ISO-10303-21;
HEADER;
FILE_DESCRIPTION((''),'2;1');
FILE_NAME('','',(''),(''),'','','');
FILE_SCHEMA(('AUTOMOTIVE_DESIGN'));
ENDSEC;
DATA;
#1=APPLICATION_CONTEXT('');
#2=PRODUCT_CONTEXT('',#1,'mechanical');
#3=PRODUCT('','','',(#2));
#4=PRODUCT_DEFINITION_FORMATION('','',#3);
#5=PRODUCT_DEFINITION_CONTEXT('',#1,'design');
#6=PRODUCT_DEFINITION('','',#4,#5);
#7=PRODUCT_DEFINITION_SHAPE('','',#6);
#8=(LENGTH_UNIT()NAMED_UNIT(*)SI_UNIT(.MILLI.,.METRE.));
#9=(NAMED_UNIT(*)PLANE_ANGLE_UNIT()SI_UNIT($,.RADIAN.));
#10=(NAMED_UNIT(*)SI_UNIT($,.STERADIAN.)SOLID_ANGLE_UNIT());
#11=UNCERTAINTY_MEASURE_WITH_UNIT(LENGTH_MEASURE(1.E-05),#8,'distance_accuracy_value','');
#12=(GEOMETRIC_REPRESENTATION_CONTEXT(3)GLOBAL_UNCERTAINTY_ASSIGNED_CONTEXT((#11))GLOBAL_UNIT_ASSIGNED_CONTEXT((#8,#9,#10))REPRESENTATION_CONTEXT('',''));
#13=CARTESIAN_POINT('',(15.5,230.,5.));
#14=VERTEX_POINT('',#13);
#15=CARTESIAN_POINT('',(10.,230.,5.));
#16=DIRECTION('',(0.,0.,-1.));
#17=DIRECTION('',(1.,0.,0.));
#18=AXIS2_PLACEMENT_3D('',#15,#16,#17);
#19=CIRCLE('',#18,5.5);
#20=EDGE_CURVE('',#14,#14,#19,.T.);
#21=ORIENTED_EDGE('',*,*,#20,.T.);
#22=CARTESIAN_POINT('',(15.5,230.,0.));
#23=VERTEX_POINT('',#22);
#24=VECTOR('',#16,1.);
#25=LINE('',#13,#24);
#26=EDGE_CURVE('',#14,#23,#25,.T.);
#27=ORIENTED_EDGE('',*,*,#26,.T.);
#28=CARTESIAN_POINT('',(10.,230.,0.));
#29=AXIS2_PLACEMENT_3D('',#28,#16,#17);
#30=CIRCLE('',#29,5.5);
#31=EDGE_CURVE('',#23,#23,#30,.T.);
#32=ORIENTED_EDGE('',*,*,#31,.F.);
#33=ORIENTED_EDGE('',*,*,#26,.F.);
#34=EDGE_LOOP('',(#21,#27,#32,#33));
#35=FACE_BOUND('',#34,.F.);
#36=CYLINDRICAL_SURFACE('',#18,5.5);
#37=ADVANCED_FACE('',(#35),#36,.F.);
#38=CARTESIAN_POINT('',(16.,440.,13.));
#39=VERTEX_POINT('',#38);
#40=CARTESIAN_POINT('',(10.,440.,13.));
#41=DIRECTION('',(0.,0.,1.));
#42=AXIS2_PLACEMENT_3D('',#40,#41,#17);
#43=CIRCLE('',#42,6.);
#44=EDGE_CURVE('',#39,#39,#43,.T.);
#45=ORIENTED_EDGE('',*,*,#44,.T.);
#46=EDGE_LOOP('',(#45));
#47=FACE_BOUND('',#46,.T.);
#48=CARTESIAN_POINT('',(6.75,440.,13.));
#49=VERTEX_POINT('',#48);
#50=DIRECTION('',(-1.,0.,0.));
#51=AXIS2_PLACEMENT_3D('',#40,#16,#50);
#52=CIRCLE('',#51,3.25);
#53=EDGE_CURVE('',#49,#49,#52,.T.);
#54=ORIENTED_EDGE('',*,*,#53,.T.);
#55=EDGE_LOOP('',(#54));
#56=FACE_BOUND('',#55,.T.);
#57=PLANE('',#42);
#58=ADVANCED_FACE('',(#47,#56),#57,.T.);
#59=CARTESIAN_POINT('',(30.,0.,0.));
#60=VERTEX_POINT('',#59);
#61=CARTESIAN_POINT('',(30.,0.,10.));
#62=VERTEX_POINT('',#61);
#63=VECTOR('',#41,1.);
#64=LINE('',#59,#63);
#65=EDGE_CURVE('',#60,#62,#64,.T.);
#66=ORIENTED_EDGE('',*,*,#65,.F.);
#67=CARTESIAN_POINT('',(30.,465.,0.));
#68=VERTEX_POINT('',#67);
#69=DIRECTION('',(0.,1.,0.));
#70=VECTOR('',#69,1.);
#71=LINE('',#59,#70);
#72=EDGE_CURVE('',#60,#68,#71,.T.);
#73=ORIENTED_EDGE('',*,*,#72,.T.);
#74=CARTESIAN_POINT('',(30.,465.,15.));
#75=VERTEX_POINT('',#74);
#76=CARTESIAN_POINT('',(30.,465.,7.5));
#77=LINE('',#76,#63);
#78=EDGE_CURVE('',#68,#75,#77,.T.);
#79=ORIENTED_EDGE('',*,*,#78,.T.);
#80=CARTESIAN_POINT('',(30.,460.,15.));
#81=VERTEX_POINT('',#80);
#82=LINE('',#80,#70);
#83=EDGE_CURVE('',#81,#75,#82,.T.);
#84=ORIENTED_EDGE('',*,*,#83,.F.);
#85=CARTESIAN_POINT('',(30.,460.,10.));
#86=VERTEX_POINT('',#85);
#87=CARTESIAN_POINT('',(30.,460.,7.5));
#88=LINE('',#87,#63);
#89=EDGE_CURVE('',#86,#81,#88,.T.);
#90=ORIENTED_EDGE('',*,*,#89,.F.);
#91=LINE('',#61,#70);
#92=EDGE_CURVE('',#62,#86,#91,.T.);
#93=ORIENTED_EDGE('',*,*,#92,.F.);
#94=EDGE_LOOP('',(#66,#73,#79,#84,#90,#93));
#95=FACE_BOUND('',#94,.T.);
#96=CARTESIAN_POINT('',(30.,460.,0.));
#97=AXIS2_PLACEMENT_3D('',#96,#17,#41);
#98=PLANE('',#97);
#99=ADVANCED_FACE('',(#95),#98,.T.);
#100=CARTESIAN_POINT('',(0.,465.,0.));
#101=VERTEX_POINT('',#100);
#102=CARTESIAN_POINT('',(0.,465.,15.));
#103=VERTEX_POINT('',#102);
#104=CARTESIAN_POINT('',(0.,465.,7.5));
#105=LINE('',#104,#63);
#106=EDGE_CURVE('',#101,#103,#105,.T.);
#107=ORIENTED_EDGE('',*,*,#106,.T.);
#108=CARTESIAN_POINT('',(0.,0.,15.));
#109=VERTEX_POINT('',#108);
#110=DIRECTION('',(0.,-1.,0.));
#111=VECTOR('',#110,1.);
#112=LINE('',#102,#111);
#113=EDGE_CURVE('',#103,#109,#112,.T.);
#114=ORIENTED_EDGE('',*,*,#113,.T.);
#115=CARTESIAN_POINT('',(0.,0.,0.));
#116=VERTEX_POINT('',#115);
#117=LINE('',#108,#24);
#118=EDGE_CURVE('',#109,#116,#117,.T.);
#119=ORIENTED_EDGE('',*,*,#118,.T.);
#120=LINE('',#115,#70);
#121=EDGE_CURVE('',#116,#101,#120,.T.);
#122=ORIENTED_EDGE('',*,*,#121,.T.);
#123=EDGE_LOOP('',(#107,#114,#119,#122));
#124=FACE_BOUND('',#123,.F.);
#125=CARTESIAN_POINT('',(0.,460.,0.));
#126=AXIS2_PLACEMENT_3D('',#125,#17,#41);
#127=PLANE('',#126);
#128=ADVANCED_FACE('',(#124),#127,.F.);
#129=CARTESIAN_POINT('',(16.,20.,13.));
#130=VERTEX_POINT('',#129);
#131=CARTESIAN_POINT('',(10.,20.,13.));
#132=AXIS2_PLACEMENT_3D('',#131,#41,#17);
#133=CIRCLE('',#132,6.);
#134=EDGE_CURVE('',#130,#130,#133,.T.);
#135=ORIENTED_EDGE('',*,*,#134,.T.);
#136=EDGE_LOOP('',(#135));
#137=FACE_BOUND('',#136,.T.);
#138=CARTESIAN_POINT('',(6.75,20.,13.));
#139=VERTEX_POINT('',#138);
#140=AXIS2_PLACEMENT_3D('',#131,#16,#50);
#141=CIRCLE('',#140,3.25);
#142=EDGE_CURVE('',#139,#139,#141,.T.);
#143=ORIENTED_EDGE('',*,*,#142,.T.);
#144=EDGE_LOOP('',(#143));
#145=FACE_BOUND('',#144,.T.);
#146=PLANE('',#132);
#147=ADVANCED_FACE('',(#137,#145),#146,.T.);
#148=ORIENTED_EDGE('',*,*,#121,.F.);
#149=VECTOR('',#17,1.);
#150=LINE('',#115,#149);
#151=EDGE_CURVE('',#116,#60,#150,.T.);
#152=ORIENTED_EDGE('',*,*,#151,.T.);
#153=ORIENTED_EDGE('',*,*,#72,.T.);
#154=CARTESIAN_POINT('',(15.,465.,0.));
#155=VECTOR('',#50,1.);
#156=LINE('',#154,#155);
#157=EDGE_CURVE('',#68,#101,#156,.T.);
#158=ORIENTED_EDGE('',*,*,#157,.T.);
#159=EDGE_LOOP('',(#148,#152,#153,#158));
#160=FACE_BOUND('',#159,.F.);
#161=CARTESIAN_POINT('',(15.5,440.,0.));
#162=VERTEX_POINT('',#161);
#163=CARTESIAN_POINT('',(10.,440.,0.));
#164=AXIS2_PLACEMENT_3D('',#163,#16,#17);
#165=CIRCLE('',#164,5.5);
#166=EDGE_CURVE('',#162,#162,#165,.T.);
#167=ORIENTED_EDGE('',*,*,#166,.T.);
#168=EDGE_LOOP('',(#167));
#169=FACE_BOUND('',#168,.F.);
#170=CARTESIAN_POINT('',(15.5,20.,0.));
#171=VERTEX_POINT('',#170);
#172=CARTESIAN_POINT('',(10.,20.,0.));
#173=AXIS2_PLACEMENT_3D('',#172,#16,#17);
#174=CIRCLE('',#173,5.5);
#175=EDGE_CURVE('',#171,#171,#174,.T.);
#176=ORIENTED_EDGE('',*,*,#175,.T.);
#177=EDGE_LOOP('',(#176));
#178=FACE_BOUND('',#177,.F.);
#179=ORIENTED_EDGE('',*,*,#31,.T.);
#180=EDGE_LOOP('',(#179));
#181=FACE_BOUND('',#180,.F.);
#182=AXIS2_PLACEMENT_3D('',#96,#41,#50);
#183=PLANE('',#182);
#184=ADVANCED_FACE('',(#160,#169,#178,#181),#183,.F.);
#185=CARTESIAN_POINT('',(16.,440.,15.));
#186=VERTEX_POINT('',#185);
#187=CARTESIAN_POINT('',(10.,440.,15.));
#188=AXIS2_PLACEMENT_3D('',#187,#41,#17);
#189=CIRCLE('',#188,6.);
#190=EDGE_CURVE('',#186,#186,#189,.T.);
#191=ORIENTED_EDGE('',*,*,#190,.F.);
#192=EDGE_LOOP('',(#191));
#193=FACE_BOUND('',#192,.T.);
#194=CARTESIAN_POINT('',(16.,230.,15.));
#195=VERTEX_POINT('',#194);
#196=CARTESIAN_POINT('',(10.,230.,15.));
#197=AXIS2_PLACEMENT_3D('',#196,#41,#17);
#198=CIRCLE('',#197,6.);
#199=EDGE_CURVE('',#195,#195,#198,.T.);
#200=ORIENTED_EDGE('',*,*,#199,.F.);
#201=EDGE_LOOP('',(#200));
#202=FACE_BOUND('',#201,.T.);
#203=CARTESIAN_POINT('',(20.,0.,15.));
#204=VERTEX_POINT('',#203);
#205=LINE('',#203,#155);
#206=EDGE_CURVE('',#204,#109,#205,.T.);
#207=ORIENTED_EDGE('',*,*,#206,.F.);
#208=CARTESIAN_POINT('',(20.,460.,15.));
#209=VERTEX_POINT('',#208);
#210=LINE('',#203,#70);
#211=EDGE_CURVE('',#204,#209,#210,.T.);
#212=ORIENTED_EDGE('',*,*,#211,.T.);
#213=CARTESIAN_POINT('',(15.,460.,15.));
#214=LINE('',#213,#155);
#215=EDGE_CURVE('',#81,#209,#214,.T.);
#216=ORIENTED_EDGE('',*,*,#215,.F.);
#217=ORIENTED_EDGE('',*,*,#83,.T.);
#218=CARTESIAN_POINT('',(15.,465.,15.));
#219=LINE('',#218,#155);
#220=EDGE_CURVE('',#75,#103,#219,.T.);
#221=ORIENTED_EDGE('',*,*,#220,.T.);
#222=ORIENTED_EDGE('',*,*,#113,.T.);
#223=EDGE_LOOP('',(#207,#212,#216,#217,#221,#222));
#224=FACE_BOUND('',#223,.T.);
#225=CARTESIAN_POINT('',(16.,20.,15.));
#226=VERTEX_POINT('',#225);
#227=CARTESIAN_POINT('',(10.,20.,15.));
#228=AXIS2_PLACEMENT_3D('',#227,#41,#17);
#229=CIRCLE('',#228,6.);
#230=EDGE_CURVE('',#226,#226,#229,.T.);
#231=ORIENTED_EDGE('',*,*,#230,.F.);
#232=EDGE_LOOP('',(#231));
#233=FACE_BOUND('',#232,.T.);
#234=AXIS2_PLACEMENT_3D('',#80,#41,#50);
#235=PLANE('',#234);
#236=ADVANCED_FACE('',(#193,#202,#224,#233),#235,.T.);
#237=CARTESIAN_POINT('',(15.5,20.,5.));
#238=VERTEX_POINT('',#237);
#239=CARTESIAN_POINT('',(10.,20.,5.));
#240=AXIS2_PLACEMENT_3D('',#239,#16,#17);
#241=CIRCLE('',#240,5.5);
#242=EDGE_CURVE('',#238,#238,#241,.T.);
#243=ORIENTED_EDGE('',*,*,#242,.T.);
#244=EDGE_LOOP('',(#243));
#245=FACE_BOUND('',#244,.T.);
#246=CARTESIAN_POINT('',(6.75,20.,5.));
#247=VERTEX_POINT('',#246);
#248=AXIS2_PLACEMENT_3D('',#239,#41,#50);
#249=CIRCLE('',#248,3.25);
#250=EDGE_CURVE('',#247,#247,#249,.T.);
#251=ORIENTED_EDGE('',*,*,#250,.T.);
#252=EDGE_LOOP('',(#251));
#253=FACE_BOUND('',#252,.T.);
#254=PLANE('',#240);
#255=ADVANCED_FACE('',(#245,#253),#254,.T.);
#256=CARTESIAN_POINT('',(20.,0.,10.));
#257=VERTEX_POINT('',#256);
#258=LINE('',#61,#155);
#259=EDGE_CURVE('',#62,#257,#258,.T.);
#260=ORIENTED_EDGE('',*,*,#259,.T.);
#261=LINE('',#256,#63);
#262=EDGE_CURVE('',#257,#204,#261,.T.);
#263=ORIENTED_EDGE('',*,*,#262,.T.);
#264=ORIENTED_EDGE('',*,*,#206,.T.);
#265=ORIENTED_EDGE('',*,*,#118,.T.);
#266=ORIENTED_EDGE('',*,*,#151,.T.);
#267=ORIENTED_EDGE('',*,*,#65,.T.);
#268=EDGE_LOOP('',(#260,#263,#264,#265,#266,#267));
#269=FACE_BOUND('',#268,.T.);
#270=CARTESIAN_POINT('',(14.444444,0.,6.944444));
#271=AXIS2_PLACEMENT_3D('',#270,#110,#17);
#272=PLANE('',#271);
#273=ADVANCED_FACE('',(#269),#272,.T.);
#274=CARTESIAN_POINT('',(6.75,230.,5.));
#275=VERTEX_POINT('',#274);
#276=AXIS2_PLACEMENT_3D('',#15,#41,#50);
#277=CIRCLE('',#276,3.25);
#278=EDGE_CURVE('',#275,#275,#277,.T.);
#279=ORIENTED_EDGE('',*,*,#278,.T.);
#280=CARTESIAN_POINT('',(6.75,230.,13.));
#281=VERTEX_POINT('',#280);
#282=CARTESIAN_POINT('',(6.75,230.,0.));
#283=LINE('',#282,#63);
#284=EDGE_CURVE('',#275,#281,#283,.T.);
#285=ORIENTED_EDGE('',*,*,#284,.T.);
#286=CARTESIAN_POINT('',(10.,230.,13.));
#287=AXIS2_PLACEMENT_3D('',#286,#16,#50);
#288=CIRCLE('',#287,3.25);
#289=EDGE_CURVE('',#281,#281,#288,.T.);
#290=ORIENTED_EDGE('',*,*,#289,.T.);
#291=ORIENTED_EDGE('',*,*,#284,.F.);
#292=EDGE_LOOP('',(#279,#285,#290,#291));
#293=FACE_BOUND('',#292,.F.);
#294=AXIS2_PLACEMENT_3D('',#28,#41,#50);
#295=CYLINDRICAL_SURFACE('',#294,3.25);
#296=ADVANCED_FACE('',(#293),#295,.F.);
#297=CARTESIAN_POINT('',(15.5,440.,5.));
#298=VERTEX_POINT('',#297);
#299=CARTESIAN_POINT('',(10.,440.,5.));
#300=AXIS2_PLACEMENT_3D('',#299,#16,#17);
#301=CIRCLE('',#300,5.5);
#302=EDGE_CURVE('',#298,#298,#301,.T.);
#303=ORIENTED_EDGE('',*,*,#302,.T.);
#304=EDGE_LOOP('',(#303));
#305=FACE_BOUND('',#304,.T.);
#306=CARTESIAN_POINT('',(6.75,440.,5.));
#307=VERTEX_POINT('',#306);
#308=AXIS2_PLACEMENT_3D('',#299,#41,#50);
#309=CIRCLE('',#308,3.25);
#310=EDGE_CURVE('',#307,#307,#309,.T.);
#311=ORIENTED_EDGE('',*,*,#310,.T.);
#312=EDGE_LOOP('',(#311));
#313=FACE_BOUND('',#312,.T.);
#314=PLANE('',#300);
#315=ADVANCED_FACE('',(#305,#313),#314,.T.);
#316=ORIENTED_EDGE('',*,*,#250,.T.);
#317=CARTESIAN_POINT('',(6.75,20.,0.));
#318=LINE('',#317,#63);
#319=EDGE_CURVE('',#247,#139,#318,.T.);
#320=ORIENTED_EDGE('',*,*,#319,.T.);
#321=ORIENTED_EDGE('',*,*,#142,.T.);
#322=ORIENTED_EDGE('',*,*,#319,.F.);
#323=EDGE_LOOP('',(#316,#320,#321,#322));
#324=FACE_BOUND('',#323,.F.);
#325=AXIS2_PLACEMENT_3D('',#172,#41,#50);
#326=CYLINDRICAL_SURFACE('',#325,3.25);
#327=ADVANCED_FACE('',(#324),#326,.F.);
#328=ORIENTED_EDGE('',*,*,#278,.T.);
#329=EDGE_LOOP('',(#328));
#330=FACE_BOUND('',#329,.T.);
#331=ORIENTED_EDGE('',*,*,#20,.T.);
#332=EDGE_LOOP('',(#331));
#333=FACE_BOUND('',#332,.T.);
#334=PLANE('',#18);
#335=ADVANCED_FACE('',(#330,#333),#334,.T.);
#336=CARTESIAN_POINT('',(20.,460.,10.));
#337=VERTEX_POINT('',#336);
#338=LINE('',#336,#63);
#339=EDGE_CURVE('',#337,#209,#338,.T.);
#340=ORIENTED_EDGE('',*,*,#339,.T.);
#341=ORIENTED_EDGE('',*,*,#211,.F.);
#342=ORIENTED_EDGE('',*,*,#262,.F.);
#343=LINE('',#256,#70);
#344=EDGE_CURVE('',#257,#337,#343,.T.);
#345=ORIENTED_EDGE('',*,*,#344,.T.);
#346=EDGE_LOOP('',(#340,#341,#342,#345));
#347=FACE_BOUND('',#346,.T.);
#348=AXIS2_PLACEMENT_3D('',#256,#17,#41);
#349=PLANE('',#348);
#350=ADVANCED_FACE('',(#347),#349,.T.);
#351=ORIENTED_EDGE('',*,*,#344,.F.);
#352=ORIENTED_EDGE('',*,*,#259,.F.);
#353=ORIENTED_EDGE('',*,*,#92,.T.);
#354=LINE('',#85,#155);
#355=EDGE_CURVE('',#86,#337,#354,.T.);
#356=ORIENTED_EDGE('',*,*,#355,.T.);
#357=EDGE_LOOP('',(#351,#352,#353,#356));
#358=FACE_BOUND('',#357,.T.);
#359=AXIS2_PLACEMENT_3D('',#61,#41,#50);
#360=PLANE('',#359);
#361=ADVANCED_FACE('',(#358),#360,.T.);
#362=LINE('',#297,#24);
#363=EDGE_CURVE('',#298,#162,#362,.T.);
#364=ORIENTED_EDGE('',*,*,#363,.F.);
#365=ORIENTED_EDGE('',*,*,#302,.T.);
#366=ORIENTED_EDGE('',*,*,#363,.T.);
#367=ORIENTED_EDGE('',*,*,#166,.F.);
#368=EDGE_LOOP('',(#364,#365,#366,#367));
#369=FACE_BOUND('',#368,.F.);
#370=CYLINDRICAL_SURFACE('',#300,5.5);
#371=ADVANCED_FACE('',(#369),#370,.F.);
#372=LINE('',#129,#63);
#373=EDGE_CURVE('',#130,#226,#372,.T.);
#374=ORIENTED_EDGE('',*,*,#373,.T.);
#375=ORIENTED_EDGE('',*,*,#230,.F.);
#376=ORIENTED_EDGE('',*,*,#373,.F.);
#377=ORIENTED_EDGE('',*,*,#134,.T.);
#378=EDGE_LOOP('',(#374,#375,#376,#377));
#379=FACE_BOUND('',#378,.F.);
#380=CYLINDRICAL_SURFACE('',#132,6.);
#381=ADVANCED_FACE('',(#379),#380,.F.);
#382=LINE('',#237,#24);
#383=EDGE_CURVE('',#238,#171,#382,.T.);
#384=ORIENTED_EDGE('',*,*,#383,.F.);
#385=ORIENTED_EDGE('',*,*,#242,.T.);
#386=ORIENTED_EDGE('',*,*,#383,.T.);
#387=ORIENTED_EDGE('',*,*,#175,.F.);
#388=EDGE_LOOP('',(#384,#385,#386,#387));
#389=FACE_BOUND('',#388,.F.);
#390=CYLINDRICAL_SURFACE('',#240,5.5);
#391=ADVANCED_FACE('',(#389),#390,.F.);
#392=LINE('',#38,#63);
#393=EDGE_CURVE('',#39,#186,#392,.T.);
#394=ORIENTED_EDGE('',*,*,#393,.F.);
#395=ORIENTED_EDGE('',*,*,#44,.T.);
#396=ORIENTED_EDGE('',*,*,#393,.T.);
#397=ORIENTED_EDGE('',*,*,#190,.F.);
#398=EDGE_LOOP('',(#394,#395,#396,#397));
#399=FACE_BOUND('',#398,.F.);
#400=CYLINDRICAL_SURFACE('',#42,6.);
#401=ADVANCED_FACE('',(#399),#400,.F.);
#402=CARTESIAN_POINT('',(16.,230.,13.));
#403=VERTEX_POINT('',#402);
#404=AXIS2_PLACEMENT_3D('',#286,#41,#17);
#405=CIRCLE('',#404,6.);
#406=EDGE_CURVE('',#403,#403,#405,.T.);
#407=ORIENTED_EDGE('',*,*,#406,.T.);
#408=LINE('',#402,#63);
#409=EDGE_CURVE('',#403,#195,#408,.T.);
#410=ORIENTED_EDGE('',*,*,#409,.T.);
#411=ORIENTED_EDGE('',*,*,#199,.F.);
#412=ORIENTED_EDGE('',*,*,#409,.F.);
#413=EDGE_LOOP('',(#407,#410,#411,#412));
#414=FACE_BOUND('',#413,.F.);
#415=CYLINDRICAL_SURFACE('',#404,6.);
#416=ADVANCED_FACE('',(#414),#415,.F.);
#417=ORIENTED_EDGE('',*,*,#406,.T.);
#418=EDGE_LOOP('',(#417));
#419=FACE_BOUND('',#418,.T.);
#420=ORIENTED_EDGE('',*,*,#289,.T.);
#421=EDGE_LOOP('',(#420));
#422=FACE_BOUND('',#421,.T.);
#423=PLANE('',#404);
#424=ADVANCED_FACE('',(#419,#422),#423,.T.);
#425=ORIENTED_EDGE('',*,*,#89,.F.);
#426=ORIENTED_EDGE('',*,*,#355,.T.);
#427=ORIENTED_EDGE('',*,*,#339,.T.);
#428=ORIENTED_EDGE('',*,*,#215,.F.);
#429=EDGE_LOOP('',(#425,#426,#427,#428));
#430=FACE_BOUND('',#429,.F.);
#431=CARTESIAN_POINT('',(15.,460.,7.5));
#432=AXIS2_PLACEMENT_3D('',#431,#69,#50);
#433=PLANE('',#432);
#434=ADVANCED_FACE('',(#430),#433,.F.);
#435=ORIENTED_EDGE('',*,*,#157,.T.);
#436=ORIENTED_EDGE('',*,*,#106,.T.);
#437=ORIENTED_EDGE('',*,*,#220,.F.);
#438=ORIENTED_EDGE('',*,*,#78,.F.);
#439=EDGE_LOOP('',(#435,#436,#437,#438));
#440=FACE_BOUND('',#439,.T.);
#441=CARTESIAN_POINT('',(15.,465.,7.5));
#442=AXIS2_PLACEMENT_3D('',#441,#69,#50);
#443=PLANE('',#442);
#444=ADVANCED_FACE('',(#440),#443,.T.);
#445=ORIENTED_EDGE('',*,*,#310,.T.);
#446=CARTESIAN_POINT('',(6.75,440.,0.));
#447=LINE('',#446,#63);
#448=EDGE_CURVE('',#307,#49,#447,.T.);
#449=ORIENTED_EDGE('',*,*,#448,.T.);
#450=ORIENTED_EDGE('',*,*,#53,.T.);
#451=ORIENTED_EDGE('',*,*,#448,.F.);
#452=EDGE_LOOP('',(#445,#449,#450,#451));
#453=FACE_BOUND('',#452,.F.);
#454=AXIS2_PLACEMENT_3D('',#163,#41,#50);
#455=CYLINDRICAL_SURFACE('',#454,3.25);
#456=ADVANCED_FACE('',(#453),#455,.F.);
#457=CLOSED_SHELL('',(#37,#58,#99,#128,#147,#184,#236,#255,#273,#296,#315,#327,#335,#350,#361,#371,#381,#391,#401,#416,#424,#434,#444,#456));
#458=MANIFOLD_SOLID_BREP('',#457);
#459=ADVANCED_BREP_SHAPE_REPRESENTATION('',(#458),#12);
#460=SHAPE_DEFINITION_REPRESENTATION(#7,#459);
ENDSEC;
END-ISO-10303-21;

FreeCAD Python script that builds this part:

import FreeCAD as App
import Part
import Sketcher

V = App.Vector
Q = App.Units.Quantity


def add_polygon(sketch, points):
    """Adds a closed chain of lines whose ends are joined by coincident constraints."""
    first, n = sketch.GeometryCount, len(points)
    for a, b in zip(points, points[1:] + points[:1]):
        sketch.addGeometry(Part.LineSegment(App.Vector(*a, 0), App.Vector(*b, 0)), False)
    for i in range(n):
        sketch.addConstraint(Sketcher.Constraint("Coincident", first + i, 2, first + (i + 1) % n, 1))

doc = App.newDocument("Part")
body = doc.addObject("PartDesign::Body", "Body")

sketch1 = body.newObject("Sketcher::SketchObject", "Sketch")
sketch1.AttachmentSupport = (doc.getObject("XZ_Plane"), [""])
sketch1.MapMode = "FlatFace"
add_polygon(sketch1, [(0, 15), (0, 0), (30, 0), (30, 10), (20, 10), (20, 15)])
sketch1.addConstraint([
    Sketcher.Constraint("Vertical", 0),
    Sketcher.Constraint("Horizontal", 1),
    Sketcher.Constraint("Vertical", 2),
    Sketcher.Constraint("Horizontal", 3),
    Sketcher.Constraint("Vertical", 4),
    Sketcher.Constraint("Horizontal", 5),
    Sketcher.Constraint("Coincident", 0, 2, -1, 1),
    Sketcher.Constraint("Equal", 3, 2),
    Sketcher.Constraint("DistanceX", 1, 1, 1, 2, Q("30 mm")),
    Sketcher.Constraint("DistanceX", 3, 2, 3, 1, Q("10 mm")),
    Sketcher.Constraint("DistanceY", 0, 2, 0, 1, Q("15 mm")),
])
pad1 = body.newObject("PartDesign::Pad", "Pad")
pad1.Profile = sketch1
pad1.Length = 460
pad1.Reversed = True

sketch2 = body.newObject("Sketcher::SketchObject", "Sketch001")
sketch2.AttachmentSupport = (doc.getObject("XY_Plane"), [""])
sketch2.MapMode = "FlatFace"
sketch2.addGeometry([
    Part.Circle(V(10, 440, 0), V(0, 0, 1), 3.2),
    Part.Circle(V(10, 230, 0), V(0, 0, 1), 3.2),
    Part.Circle(V(10, 20, 0), V(0, 0, 1), 3.2),
], False)
sketch2.addConstraint([
    Sketcher.Constraint("Equal", 0, 1),
    Sketcher.Constraint("Equal", 1, 2),
    Sketcher.Constraint("Vertical", 0, 3, 1, 3),
    Sketcher.Constraint("Vertical", 1, 3, 2, 3),
    Sketcher.Constraint("Diameter", 0, Q("6.5 mm")),
    Sketcher.Constraint("DistanceX", -1, 1, 0, 3, Q("10 mm")),
    Sketcher.Constraint("DistanceY", -1, 1, 0, 3, Q("440 mm")),
    Sketcher.Constraint("DistanceY", -1, 1, 1, 3, Q("230 mm")),
    Sketcher.Constraint("DistanceY", -1, 1, 2, 3, Q("20 mm")),
])
doc.recompute()
hole = body.newObject("PartDesign::Hole", "Hole")
hole.Profile = sketch2
hole.ThreadType = "None"
hole.Diameter = 6.5
hole.DepthType = "Dimension"
hole.Depth = 15
hole.DrillPoint = "Flat"
hole.HoleCutType = "Counterbore"
hole.HoleCutDiameter = 11
hole.HoleCutDepth = 5
hole.Reversed = True

sketch3 = body.newObject("Sketcher::SketchObject", "Sketch002")
sketch3.AttachmentSupport = (doc.getObject("XY_Plane"), [""])
sketch3.MapMode = "FlatFace"
sketch3.AttachmentOffset = App.Placement(V(0, 0, 15), App.Rotation())
sketch3.addGeometry([
    Part.Circle(V(10, 440, 0), V(0, 0, 1), 3.2),
    Part.Circle(V(10, 230, 0), V(0, 0, 1), 3.2),
    Part.Circle(V(10, 20, 0), V(0, 0, 1), 3.2),
], False)
sketch3.addConstraint([
    Sketcher.Constraint("Equal", 0, 1),
    Sketcher.Constraint("Equal", 1, 2),
    Sketcher.Constraint("Vertical", 0, 3, 1, 3),
    Sketcher.Constraint("Vertical", 1, 3, 2, 3),
    Sketcher.Constraint("Diameter", 0, Q("6.5 mm")),
    Sketcher.Constraint("DistanceX", -1, 1, 0, 3, Q("10 mm")),
    Sketcher.Constraint("DistanceY", -1, 1, 0, 3, Q("440 mm")),
    Sketcher.Constraint("DistanceY", -1, 1, 1, 3, Q("230 mm")),
    Sketcher.Constraint("DistanceY", -1, 1, 2, 3, Q("20 mm")),
])
doc.recompute()
hole2 = body.newObject("PartDesign::Hole", "Hole001")
hole2.Profile = sketch3
hole2.ThreadType = "None"
hole2.Diameter = 6.5
hole2.DepthType = "Dimension"
hole2.Depth = 15
hole2.DrillPoint = "Flat"
hole2.HoleCutType = "Counterbore"
hole2.HoleCutDiameter = 12
hole2.HoleCutDepth = 2

sketch4 = body.newObject("Sketcher::SketchObject", "Sketch003")
sketch4.AttachmentSupport = (doc.getObject("XZ_Plane"), [""])
sketch4.MapMode = "FlatFace"
sketch4.AttachmentOffset = App.Placement(V(0, 0, -460), App.Rotation())
add_polygon(sketch4, [(30, 15), (30, 0), (0, 0), (0, 15)])
sketch4.addConstraint([
    Sketcher.Constraint("Vertical", 0),
    Sketcher.Constraint("Horizontal", 1),
    Sketcher.Constraint("Vertical", 2),
    Sketcher.Constraint("Horizontal", 3),
    Sketcher.Constraint("Coincident", 1, 2, -1, 1),
    Sketcher.Constraint("DistanceX", 1, 2, 1, 1, Q("30 mm")),
    Sketcher.Constraint("DistanceY", 0, 2, 0, 1, Q("15 mm")),
])
pad2 = body.newObject("PartDesign::Pad", "Pad001")
pad2.Profile = sketch4
pad2.Length = 5
pad2.Reversed = True

doc.recompute()
